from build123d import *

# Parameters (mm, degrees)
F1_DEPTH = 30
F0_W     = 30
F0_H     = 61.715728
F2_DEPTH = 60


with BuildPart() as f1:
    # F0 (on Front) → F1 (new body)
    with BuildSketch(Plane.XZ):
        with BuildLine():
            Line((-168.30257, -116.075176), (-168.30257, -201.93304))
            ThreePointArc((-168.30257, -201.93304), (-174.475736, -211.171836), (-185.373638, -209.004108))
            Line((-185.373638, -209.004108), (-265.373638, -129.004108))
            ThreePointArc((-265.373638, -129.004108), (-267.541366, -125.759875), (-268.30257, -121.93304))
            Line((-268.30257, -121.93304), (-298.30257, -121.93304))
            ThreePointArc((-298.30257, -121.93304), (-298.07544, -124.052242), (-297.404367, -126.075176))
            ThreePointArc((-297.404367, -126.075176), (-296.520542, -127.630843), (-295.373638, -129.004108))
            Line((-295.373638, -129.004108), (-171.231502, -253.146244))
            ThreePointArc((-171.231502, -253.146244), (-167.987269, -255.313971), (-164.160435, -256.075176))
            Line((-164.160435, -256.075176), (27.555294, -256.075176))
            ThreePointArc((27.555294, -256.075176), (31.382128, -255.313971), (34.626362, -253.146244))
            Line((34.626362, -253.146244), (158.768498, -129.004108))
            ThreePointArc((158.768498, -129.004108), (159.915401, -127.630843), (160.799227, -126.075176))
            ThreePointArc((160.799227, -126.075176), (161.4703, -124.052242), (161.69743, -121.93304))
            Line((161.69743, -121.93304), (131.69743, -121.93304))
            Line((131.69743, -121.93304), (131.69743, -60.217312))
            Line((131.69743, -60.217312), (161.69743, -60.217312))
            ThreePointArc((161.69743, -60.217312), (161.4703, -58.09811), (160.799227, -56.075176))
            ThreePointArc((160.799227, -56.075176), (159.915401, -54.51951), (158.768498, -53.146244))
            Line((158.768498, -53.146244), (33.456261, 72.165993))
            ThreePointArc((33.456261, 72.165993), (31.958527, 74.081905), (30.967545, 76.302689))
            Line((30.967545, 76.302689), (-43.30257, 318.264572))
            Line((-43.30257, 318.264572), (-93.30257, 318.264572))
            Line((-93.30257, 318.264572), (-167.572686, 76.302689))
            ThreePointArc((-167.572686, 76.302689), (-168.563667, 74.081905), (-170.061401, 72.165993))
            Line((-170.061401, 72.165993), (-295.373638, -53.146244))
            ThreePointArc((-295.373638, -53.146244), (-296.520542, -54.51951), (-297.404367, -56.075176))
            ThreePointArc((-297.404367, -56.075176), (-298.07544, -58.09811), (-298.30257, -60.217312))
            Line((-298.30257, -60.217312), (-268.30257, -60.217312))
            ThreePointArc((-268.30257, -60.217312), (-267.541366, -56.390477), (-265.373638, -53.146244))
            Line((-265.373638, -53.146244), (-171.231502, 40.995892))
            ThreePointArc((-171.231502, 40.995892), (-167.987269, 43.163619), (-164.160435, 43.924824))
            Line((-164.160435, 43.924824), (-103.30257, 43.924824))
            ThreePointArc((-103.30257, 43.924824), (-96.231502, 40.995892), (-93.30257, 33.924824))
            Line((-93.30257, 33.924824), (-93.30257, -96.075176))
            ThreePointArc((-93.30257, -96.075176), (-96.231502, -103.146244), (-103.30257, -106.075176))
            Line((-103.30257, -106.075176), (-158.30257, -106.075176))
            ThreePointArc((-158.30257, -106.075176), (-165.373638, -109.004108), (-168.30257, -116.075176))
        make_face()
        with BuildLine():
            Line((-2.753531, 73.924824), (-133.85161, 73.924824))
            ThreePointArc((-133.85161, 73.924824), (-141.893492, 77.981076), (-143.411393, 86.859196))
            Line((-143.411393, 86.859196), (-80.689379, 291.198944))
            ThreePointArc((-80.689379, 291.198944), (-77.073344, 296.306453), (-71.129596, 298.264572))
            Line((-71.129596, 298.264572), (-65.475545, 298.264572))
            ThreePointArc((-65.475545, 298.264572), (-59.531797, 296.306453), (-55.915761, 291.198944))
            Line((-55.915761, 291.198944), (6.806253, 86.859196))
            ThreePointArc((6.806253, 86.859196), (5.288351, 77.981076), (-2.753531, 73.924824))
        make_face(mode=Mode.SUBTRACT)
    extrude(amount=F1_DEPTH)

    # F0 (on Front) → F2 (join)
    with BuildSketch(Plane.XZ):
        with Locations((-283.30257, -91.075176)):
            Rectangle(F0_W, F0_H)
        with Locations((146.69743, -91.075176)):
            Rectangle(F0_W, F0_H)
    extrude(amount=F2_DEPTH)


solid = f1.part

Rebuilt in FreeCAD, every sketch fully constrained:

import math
import FreeCAD as App
import Part
import Sketcher

V = App.Vector
Q = App.Units.Quantity

doc = App.newDocument("Part")
body = doc.addObject("PartDesign::Body", "Body")

sketch1 = body.newObject("Sketcher::SketchObject", "Sketch")
sketch1.AttachmentSupport = (doc.getObject("XZ_Plane"), [""])
sketch1.MapMode = "FlatFace"
sketch1.addGeometry([
    Part.LineSegment(V(-168.30257, -116.075176, 0), V(-168.30257, -201.93304, 0)),
    Part.ArcOfCircle(Part.Circle(V(-178.30257, -201.933041, 0), V(0, 0, 1), 10), math.radians(-135.000003), math.radians(0.000003)),
    Part.LineSegment(V(-185.373638, -209.004108, 0), V(-265.373638, -129.004108, 0)),
    Part.ArcOfCircle(Part.Circle(V(-258.302579, -121.933044, 0), V(0, 0, 1), 9.999991), math.radians(179.999977), math.radians(225.00002)),
    Part.LineSegment(V(-268.30257, -121.93304, 0), V(-298.30257, -121.93304, 0)),
    Part.ArcOfCircle(Part.Circle(V(-288.302582, -121.933042, 0), V(0, 0, 1), 9.999988), math.radians(179.999986), math.radians(204.469818)),
    Part.ArcOfCircle(Part.Circle(V(-288.302622, -121.933077, 0), V(0, 0, 1), 9.999937), math.radians(-155.530267), math.radians(-134.999939)),
    Part.LineSegment(V(-295.373638, -129.004108, 0), V(-171.231502, -253.146244, 0)),
    Part.ArcOfCircle(Part.Circle(V(-164.160433, -246.075174, 0), V(0, 0, 1), 10.000002), math.radians(-134.999993), math.radians(-90.000009)),
    Part.LineSegment(V(-164.160435, -256.075176, 0), V(27.555294, -256.075176, 0)),
    Part.ArcOfCircle(Part.Circle(V(27.555292, -246.075169, 0), V(0, 0, 1), 10.000007), math.radians(-89.999986), math.radians(-45.000018)),
    Part.LineSegment(V(34.626362, -253.146244, 0), V(158.768498, -129.004108, 0)),
    Part.ArcOfCircle(Part.Circle(V(151.69744, -121.933048, 0), V(0, 0, 1), 9.999988), math.radians(-45.000008), math.radians(-24.469785)),
    Part.ArcOfCircle(Part.Circle(V(151.697442, -121.933042, 0), V(0, 0, 1), 9.999988), math.radians(-24.469818), math.radians(0.000014)),
    Part.LineSegment(V(161.69743, -121.93304, 0), V(131.69743, -121.93304, 0)),
    Part.LineSegment(V(131.69743, -121.93304, 0), V(131.69743, -60.217312, 0)),
    Part.LineSegment(V(131.69743, -60.217312, 0), V(161.69743, -60.217312, 0)),
    Part.ArcOfCircle(Part.Circle(V(151.697442, -60.21731, 0), V(0, 0, 1), 9.999988), math.radians(-0.000014), math.radians(24.469818)),
    Part.ArcOfCircle(Part.Circle(V(151.697411, -60.217324, 0), V(0, 0, 1), 10.000023), math.radians(24.469822), math.radians(44.999972)),
    Part.LineSegment(V(158.768498, -53.146244, 0), V(33.456261, 72.165993, 0)),
    Part.ArcOfCircle(Part.Circle(V(40.527338, 79.237067, 0), V(0, 0, 1), 10.00001), math.radians(-162.936136), math.radians(-135.000012)),
    Part.LineSegment(V(30.967545, 76.302689, 0), V(-43.30257, 318.264572, 0)),
    Part.LineSegment(V(-43.30257, 318.264572, 0), V(-93.30257, 318.264572, 0)),
    Part.LineSegment(V(-93.30257, 318.264572, 0), V(-167.572686, 76.302689, 0)),
    Part.ArcOfCircle(Part.Circle(V(-177.132465, 79.237057, 0), V(0, 0, 1), 9.999994), math.radians(-44.999999), math.radians(-17.063833)),
    Part.LineSegment(V(-170.061401, 72.165993, 0), V(-295.373638, -53.146244, 0)),
    Part.ArcOfCircle(Part.Circle(V(-288.302593, -60.217295, 0), V(0, 0, 1), 9.999972), math.radians(134.999976), math.radians(155.530231)),
    Part.ArcOfCircle(Part.Circle(V(-288.302582, -60.21731, 0), V(0, 0, 1), 9.999988), math.radians(155.530182), math.radians(180.000014)),
    Part.LineSegment(V(-298.30257, -60.217312, 0), V(-268.30257, -60.217312, 0)),
    Part.ArcOfCircle(Part.Circle(V(-258.302579, -60.217308, 0), V(0, 0, 1), 9.999991), math.radians(134.99998), math.radians(180.000023)),
    Part.LineSegment(V(-265.373638, -53.146244, 0), V(-171.231502, 40.995892, 0)),
    Part.ArcOfCircle(Part.Circle(V(-164.160433, 33.924822, 0), V(0, 0, 1), 10.000002), math.radians(90.000009), math.radians(134.999993)),
    Part.LineSegment(V(-164.160435, 43.924824, 0), V(-103.30257, 43.924824, 0)),
    Part.ArcOfCircle(Part.Circle(V(-103.302569, 33.924825, 0), V(0, 0, 1), 9.999999), math.radians(-0.000004), math.radians(90.000004)),
    Part.LineSegment(V(-93.30257, 33.924824, 0), V(-93.30257, -96.075176, 0)),
    Part.ArcOfCircle(Part.Circle(V(-103.302569, -96.075177, 0), V(0, 0, 1), 9.999999), math.radians(-90.000004), math.radians(0.000004)),
    Part.LineSegment(V(-103.30257, -106.075176, 0), V(-158.30257, -106.075176, 0)),
    Part.ArcOfCircle(Part.Circle(V(-158.302571, -116.075175, 0), V(0, 0, 1), 9.999999), math.radians(89.999996), math.radians(180.000004)),
    Part.ArcOfCircle(Part.Circle(V(-2.753531, 83.924824, 0), V(0, 0, 1), 10), math.radians(-90.000002), math.radians(17.063848)),
    Part.LineSegment(V(-2.753531, 73.924824, 0), V(-133.85161, 73.924824, 0)),
    Part.ArcOfCircle(Part.Circle(V(-133.851611, 83.924823, 0), V(0, 0, 1), 9.999999), math.radians(162.936143), math.radians(270.000005)),
    Part.LineSegment(V(-143.411393, 86.859196, 0), V(-80.689379, 291.198944, 0)),
    Part.ArcOfCircle(Part.Circle(V(-71.129595, 288.264571, 0), V(0, 0, 1), 10.000001), math.radians(90.000006), math.radians(162.936148)),
    Part.LineSegment(V(-71.129596, 298.264572, 0), V(-65.475545, 298.264572, 0)),
    Part.ArcOfCircle(Part.Circle(V(-65.475547, 288.264569, 0), V(0, 0, 1), 10.000003), math.radians(17.063862), math.radians(89.999989)),
    Part.LineSegment(V(-55.915761, 291.198944, 0), V(6.806253, 86.859196, 0)),
], False)
sketch1.addConstraint([
    Sketcher.Constraint("Coincident", 0, 2, 1, 2),
    Sketcher.Constraint("Coincident", 1, 1, 2, 1),
    Sketcher.Constraint("Coincident", 2, 2, 3, 2),
    Sketcher.Constraint("Coincident", 3, 1, 4, 1),
    Sketcher.Constraint("Coincident", 4, 2, 5, 1),
    Sketcher.Constraint("Coincident", 5, 2, 6, 1),
    Sketcher.Constraint("Coincident", 6, 2, 7, 1),
    Sketcher.Constraint("Coincident", 7, 2, 8, 1),
    Sketcher.Constraint("Coincident", 8, 2, 9, 1),
    Sketcher.Constraint("Coincident", 9, 2, 10, 1),
    Sketcher.Constraint("Coincident", 10, 2, 11, 1),
    Sketcher.Constraint("Coincident", 11, 2, 12, 1),
    Sketcher.Constraint("Coincident", 12, 2, 13, 1),
    Sketcher.Constraint("Coincident", 13, 2, 14, 1),
    Sketcher.Constraint("Coincident", 14, 2, 15, 1),
    Sketcher.Constraint("Coincident", 15, 2, 16, 1),
    Sketcher.Constraint("Coincident", 16, 2, 17, 1),
    Sketcher.Constraint("Coincident", 17, 2, 18, 1),
    Sketcher.Constraint("Coincident", 18, 2, 19, 1),
    Sketcher.Constraint("Coincident", 19, 2, 20, 2),
    Sketcher.Constraint("Coincident", 20, 1, 21, 1),
    Sketcher.Constraint("Coincident", 21, 2, 22, 1),
    Sketcher.Constraint("Coincident", 22, 2, 23, 1),
    Sketcher.Constraint("Coincident", 23, 2, 24, 2),
    Sketcher.Constraint("Coincident", 24, 1, 25, 1),
    Sketcher.Constraint("Coincident", 25, 2, 26, 1),
    Sketcher.Constraint("Coincident", 26, 2, 27, 1),
    Sketcher.Constraint("Coincident", 27, 2, 28, 1),
    Sketcher.Constraint("Coincident", 28, 2, 29, 2),
    Sketcher.Constraint("Coincident", 29, 1, 30, 1),
    Sketcher.Constraint("Coincident", 30, 2, 31, 2),
    Sketcher.Constraint("Coincident", 31, 1, 32, 1),
    Sketcher.Constraint("Coincident", 32, 2, 33, 2),
    Sketcher.Constraint("Coincident", 33, 1, 34, 1),
    Sketcher.Constraint("Coincident", 34, 2, 35, 2),
    Sketcher.Constraint("Coincident", 35, 1, 36, 1),
    Sketcher.Constraint("Coincident", 36, 2, 37, 1),
    Sketcher.Constraint("Coincident", 37, 2, 0, 1),
    Sketcher.Constraint("Coincident", 38, 1, 39, 1),
    Sketcher.Constraint("Coincident", 39, 2, 40, 2),
    Sketcher.Constraint("Coincident", 40, 1, 41, 1),
    Sketcher.Constraint("Coincident", 41, 2, 42, 2),
    Sketcher.Constraint("Coincident", 42, 1, 43, 1),
    Sketcher.Constraint("Coincident", 43, 2, 44, 2),
    Sketcher.Constraint("Coincident", 44, 1, 45, 1),
    Sketcher.Constraint("Coincident", 45, 2, 38, 2),
    Sketcher.Constraint("Vertical", 0),
    Sketcher.Constraint("Horizontal", 4),
    Sketcher.Constraint("Horizontal", 9),
    Sketcher.Constraint("Horizontal", 14),
    Sketcher.Constraint("Vertical", 15),
    Sketcher.Constraint("Horizontal", 16),
    Sketcher.Constraint("Horizontal", 22),
    Sketcher.Constraint("Horizontal", 28),
    Sketcher.Constraint("Horizontal", 32),
    Sketcher.Constraint("Vertical", 34),
    Sketcher.Constraint("Horizontal", 36),
    Sketcher.Constraint("Horizontal", 39),
    Sketcher.Constraint("Horizontal", 43),
    Sketcher.Constraint("Coincident", 13, 3, 12, 3),
    Sketcher.Constraint("Radius", 1, Q("10 mm")),
    Sketcher.Constraint("Radius", 33, Q("9.999999 mm")),
    Sketcher.Constraint("Radius", 35, Q("9.999999 mm")),
    Sketcher.Constraint("Radius", 37, Q("9.999999 mm")),
    Sketcher.Constraint("Radius", 38, Q("10 mm")),
    Sketcher.Constraint("Radius", 40, Q("9.999999 mm")),
    Sketcher.Constraint("Radius", 42, Q("10.000001 mm")),
    Sketcher.Constraint("DistanceX", 4, 2, 4, 1, Q("30 mm")),
    Sketcher.Constraint("DistanceX", 14, 2, 14, 1, Q("30 mm")),
    Sketcher.Constraint("DistanceX", 16, 1, 16, 2, Q("30 mm")),
    Sketcher.Constraint("DistanceX", 22, 2, 22, 1, Q("50 mm")),
    Sketcher.Constraint("DistanceX", 28, 1, 28, 2, Q("30 mm")),
    Sketcher.Constraint("DistanceX", 36, 2, 36, 1, Q("55 mm")),
    Sketcher.Constraint("DistanceY", 34, 2, 34, 1, Q("130 mm")),
    Sketcher.Constraint("Radius", 3, Q("9.999991 mm")),
    Sketcher.Constraint("Radius", 5, Q("9.999988 mm")),
    Sketcher.Constraint("Radius", 13, Q("9.999988 mm")),
    Sketcher.Constraint("Radius", 17, Q("9.999988 mm")),
    Sketcher.Constraint("Radius", 20, Q("10.00001 mm")),
    Sketcher.Constraint("Radius", 27, Q("9.999988 mm")),
    Sketcher.Constraint("Radius", 29, Q("9.999991 mm")),
    Sketcher.Constraint("Radius", 6, Q("9.999937 mm")),
    Sketcher.Constraint("Radius", 8, Q("10.000002 mm")),
    Sketcher.Constraint("Radius", 10, Q("10.000007 mm")),
    Sketcher.Constraint("Radius", 18, Q("10.000023 mm")),
    Sketcher.Constraint("Radius", 24, Q("9.999994 mm")),
    Sketcher.Constraint("Radius", 26, Q("9.999972 mm")),
    Sketcher.Constraint("Radius", 31, Q("10.000002 mm")),
    Sketcher.Constraint("Radius", 44, Q("10.000003 mm")),
    Sketcher.Constraint("DistanceX", 9, 1, 9, 2, Q("191.715729 mm")),
    Sketcher.Constraint("DistanceX", 39, 2, 39, 1, Q("131.098079 mm")),
    Sketcher.Constraint("DistanceX", 43, 1, 43, 2, Q("5.654051 mm")),
    Sketcher.Constraint("DistanceY", 15, 1, 15, 2, Q("61.715728 mm")),
    Sketcher.Constraint("DistanceX", 7, 2, -1, 1, Q("171.231502 mm")),
    Sketcher.Constraint("DistanceX", -1, 1, 11, 2, Q("158.768498 mm")),
    Sketcher.Constraint("DistanceX", 24, 1, -1, 1, Q("170.061401 mm")),
    Sketcher.Constraint("DistanceX", 30, 2, -1, 1, Q("171.231502 mm")),
    Sketcher.Constraint("DistanceX", 32, 1, 32, 2, Q("60.857865 mm")),
    Sketcher.Constraint("DistanceY", 0, 2, 0, 1, Q("85.857864 mm")),
    Sketcher.Constraint("DistanceX", 1, 3, -1, 1, Q("178.30257 mm")),
    Sketcher.Constraint("DistanceY", 1, 3, -1, 1, Q("201.933041 mm")),
    Sketcher.Constraint("DistanceX", 3, 3, -1, 1, Q("258.302579 mm")),
    Sketcher.Constraint("DistanceX", -1, 1, 10, 3, Q("27.555292 mm")),
    Sketcher.Constraint("DistanceY", 10, 3, -1, 1, Q("246.075169 mm")),
    Sketcher.Constraint("DistanceX", -1, 1, 12, 3, Q("151.69744 mm")),
    Sketcher.Constraint("DistanceY", 17, 3, -1, 1, Q("60.21731 mm")),
    Sketcher.Constraint("DistanceX", -1, 1, 18, 3, Q("151.697411 mm")),
    Sketcher.Constraint("DistanceX", 27, 3, -1, 1, Q("288.302582 mm")),
    Sketcher.Constraint("DistanceY", 27, 3, -1, 1, Q("60.21731 mm")),
    Sketcher.Constraint("DistanceY", -1, 1, 31, 3, Q("33.924822 mm")),
    Sketcher.Constraint("DistanceX", 33, 3, -1, 1, Q("103.302569 mm")),
    Sketcher.Constraint("DistanceX", 38, 3, -1, 1, Q("2.753531 mm")),
    Sketcher.Constraint("DistanceX", 40, 3, -1, 1, Q("133.851611 mm")),
    Sketcher.Constraint("DistanceY", -1, 1, 42, 3, Q("288.264571 mm")),
    Sketcher.Constraint("DistanceY", 0, 2, -1, 1, Q("201.93304 mm")),
    Sketcher.Constraint("DistanceX", 1, 1, -1, 1, Q("185.373638 mm")),
    Sketcher.Constraint("DistanceX", 2, 2, -1, 1, Q("265.373638 mm")),
    Sketcher.Constraint("DistanceY", 2, 2, -1, 1, Q("129.004108 mm")),
    Sketcher.Constraint("DistanceY", 3, 1, -1, 1, Q("121.93304 mm")),
    Sketcher.Constraint("DistanceX", 6, 2, -1, 1, Q("295.373638 mm")),
    Sketcher.Constraint("DistanceY", 6, 2, -1, 1, Q("129.004108 mm")),
    Sketcher.Constraint("DistanceY", 11, 2, -1, 1, Q("129.004108 mm")),
    Sketcher.Constraint("DistanceY", 13, 2, -1, 1, Q("121.93304 mm")),
    Sketcher.Constraint("DistanceX", -1, 1, 19, 2, Q("33.456261 mm")),
    Sketcher.Constraint("DistanceY", -1, 1, 20, 1, Q("76.302689 mm")),
    Sketcher.Constraint("DistanceX", 21, 2, -1, 1, Q("43.30257 mm")),
    Sketcher.Constraint("DistanceY", -1, 1, 21, 2, Q("318.264572 mm")),
    Sketcher.Constraint("DistanceY", -1, 1, 23, 2, Q("76.302689 mm")),
    Sketcher.Constraint("DistanceX", 25, 2, -1, 1, Q("295.373638 mm")),
    Sketcher.Constraint("DistanceY", -1, 1, 30, 2, Q("40.995892 mm")),
    Sketcher.Constraint("DistanceX", 32, 2, -1, 1, Q("103.30257 mm")),
    Sketcher.Constraint("DistanceX", 35, 1, -1, 1, Q("103.30257 mm")),
    Sketcher.Constraint("DistanceX", 38, 1, -1, 1, Q("2.753531 mm")),
    Sketcher.Constraint("DistanceX", 41, 2, -1, 1, Q("80.689379 mm")),
    Sketcher.Constraint("DistanceX", 44, 1, -1, 1, Q("55.915761 mm")),
    Sketcher.Constraint("Distance", 7, Q("175.563492 mm")),
    Sketcher.Constraint("Distance", 11, Q("175.563492 mm")),
    Sketcher.Constraint("Distance", 19, Q("177.218265 mm")),
    Sketcher.Constraint("Distance", 21, Q("253.103937 mm")),
    Sketcher.Constraint("Distance", 23, Q("253.103937 mm")),
    Sketcher.Constraint("Distance", 25, Q("177.218265 mm")),
    Sketcher.Constraint("Distance", 30, Q("133.137086 mm")),
    Sketcher.Constraint("Distance", 41, Q("213.749348 mm")),
    Sketcher.Constraint("Distance", 45, Q("213.749348 mm")),
    Sketcher.Constraint("DistanceY", 5, 3, -1, 1, Q("121.933042 mm")),
    Sketcher.Constraint("DistanceX", -1, 1, 20, 3, Q("40.527338 mm")),
    Sketcher.Constraint("DistanceX", 24, 3, -1, 1, Q("177.132465 mm")),
    Sketcher.Constraint("DistanceY", 29, 3, -1, 1, Q("60.217308 mm")),
    Sketcher.Constraint("DistanceY", 35, 3, -1, 1, Q("96.075177 mm")),
    Sketcher.Constraint("DistanceY", -1, 1, 38, 3, Q("83.924824 mm")),
    Sketcher.Constraint("DistanceX", 42, 3, -1, 1, Q("71.129595 mm")),
    Sketcher.Constraint("DistanceX", 44, 3, -1, 1, Q("65.475547 mm")),
    Sketcher.Constraint("DistanceX", 5, 2, -1, 1, Q("297.404367 mm")),
    Sketcher.Constraint("DistanceX", 8, 2, -1, 1, Q("164.160435 mm")),
    Sketcher.Constraint("DistanceX", -1, 1, 12, 2, Q("160.799227 mm")),
    Sketcher.Constraint("DistanceX", -1, 1, 17, 2, Q("160.799227 mm")),
    Sketcher.Constraint("DistanceX", 26, 2, -1, 1, Q("297.404367 mm")),
    Sketcher.Constraint("DistanceY", 27, 2, -1, 1, Q("60.217312 mm")),
    Sketcher.Constraint("DistanceY", -1, 1, 33, 1, Q("33.924824 mm")),
    Sketcher.Constraint("DistanceX", 42, 1, -1, 1, Q("71.129596 mm")),
])
pad1 = body.newObject("PartDesign::Pad", "Pad")
pad1.Profile = sketch1
pad1.Length = 30

sketch2 = body.newObject("Sketcher::SketchObject", "Sketch001")
sketch2.AttachmentSupport = (doc.getObject("XZ_Plane"), [""])
sketch2.MapMode = "FlatFace"
sketch2.addGeometry([
    Part.LineSegment(V(-298.30257, -60.217312, 0), V(-298.30257, -121.93304, 0)),
    Part.LineSegment(V(-298.30257, -121.93304, 0), V(-268.30257, -121.93304, 0)),
    Part.LineSegment(V(-268.30257, -121.93304, 0), V(-268.30257, -60.217312, 0)),
    Part.LineSegment(V(-268.30257, -60.217312, 0), V(-298.30257, -60.217312, 0)),
    Part.LineSegment(V(131.69743, -60.217312, 0), V(131.69743, -121.93304, 0)),
    Part.LineSegment(V(131.69743, -121.93304, 0), V(161.69743, -121.93304, 0)),
    Part.LineSegment(V(161.69743, -121.93304, 0), V(161.69743, -60.217312, 0)),
    Part.LineSegment(V(161.69743, -60.217312, 0), V(131.69743, -60.217312, 0)),
], False)
sketch2.addConstraint([
    Sketcher.Constraint("Coincident", 0, 2, 1, 1),
    Sketcher.Constraint("Coincident", 1, 2, 2, 1),
    Sketcher.Constraint("Coincident", 2, 2, 3, 1),
    Sketcher.Constraint("Coincident", 3, 2, 0, 1),
    Sketcher.Constraint("Coincident", 4, 2, 5, 1),
    Sketcher.Constraint("Coincident", 5, 2, 6, 1),
    Sketcher.Constraint("Coincident", 6, 2, 7, 1),
    Sketcher.Constraint("Coincident", 7, 2, 4, 1),
    Sketcher.Constraint("Vertical", 0),
    Sketcher.Constraint("Horizontal", 1),
    Sketcher.Constraint("Vertical", 2),
    Sketcher.Constraint("Horizontal", 3),
    Sketcher.Constraint("Vertical", 4),
    Sketcher.Constraint("Horizontal", 5),
    Sketcher.Constraint("Vertical", 6),
    Sketcher.Constraint("Horizontal", 7),
    Sketcher.Constraint("Horizontal", 1, 2, 4, 2),
    Sketcher.Constraint("Horizontal", 3, 2, 6, 2),
    Sketcher.Constraint("Equal", 3, 5),
    Sketcher.Constraint("DistanceX", 1, 1, 1, 2, Q("30 mm")),
    Sketcher.Constraint("DistanceX", 1, 2, 4, 2, Q("400 mm")),
    Sketcher.Constraint("DistanceY", 0, 2, 0, 1, Q("61.715728 mm")),
    Sketcher.Constraint("DistanceX", 0, 2, -1, 1, Q("298.30257 mm")),
    Sketcher.Constraint("DistanceY", 0, 2, -1, 1, Q("121.93304 mm")),
])
pad2 = body.newObject("PartDesign::Pad", "Pad001")
pad2.Profile = sketch2
pad2.Length = 60

doc.recompute()
